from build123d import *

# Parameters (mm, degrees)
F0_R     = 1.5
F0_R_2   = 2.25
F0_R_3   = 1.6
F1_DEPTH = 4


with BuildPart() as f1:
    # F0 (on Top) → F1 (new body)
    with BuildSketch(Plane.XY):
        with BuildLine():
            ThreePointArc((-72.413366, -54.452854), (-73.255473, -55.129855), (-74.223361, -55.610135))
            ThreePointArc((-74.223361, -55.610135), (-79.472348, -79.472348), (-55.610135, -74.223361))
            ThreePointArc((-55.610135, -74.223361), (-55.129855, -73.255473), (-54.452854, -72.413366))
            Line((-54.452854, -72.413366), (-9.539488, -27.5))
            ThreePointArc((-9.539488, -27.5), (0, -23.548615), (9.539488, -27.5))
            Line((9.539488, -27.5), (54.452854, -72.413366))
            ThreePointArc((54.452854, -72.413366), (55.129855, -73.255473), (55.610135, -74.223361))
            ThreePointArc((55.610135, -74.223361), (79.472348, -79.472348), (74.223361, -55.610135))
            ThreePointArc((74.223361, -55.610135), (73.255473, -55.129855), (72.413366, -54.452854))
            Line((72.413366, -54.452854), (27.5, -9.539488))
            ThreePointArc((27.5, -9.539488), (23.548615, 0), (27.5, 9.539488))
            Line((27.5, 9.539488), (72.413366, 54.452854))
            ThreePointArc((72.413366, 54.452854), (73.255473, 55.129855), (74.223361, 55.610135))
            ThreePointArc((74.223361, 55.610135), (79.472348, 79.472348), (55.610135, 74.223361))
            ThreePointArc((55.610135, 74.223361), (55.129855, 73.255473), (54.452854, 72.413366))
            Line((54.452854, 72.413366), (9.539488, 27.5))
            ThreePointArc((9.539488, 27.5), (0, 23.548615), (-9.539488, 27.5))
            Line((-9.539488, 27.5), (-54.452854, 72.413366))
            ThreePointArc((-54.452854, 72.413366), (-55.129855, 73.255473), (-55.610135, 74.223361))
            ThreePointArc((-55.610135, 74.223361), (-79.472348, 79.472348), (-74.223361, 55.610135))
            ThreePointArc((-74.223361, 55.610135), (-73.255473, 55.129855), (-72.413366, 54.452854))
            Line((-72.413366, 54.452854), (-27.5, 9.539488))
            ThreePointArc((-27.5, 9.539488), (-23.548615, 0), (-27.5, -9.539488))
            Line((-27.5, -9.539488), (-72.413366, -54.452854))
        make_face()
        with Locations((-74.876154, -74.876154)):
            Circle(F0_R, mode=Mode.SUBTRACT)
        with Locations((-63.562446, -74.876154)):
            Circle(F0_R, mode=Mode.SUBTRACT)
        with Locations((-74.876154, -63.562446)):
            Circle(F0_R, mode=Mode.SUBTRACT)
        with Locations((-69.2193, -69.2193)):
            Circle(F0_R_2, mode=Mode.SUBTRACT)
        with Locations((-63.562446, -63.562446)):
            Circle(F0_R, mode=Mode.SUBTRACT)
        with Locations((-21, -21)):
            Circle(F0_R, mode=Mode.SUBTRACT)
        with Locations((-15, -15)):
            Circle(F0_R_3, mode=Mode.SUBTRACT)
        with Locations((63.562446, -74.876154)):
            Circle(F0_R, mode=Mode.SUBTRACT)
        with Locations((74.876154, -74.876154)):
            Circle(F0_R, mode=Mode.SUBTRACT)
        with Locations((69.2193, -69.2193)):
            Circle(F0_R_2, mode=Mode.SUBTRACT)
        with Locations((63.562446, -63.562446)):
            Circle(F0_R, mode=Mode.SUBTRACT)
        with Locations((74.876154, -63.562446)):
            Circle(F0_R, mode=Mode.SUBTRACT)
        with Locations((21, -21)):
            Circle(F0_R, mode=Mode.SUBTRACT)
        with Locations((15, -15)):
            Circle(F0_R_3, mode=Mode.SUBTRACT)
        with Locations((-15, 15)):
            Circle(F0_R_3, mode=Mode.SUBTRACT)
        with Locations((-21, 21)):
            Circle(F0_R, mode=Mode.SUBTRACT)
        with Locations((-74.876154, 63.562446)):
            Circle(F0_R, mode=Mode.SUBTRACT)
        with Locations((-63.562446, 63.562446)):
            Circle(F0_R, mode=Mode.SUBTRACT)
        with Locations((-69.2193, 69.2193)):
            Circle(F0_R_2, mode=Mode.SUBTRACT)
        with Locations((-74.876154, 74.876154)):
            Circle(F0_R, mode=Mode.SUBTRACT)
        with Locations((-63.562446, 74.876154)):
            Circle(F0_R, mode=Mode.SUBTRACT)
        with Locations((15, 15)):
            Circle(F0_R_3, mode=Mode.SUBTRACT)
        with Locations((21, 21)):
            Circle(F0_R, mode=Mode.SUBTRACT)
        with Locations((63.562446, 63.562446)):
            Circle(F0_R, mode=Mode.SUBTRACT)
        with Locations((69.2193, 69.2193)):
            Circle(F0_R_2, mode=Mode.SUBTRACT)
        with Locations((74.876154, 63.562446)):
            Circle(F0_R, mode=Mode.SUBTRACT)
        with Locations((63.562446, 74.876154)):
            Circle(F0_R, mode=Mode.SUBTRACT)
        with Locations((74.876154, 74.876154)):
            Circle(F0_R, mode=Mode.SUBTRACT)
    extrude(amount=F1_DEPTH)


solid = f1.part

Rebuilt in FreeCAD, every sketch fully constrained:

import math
import FreeCAD as App
import Part
import Sketcher

V = App.Vector

doc = App.newDocument("Part")
body = doc.addObject("PartDesign::Body", "Body")

# Sketch on XY plane
sketch1 = doc.addObject("Sketcher::SketchObject", "Sketch")
body.addObject(sketch1)
sketch1.AttachmentSupport = (doc.XY_Plane, [""])
sketch1.MapMode = "FlatFace"
sketch1.addGeometry([
    Part.ArcOfCircle(Part.Circle(V(-75.9, -50.9, 0), V(0, 0, 1), 5), math.radians(-70), math.radians(-45)),  # 0
    Part.ArcOfCircle(Part.Circle(V(-69.2, -69.2, 0), V(0, 0, 1), 14.5), math.radians(110), math.radians(340)),  # 1
    Part.ArcOfCircle(Part.Circle(V(-50.9, -75.9, 0), V(0, 0, 1), 5), math.radians(135), math.radians(160)),  # 2
    Part.LineSegment(V(-54.5, -72.4, 0), V(-9.5, -27.5, 0)),  # 3
    Part.ArcOfCircle(Part.Circle(V(0, -37, 0), V(0, 0, 1), 13.5), math.radians(45), math.radians(135)),  # 4
    Part.LineSegment(V(9.5, -27.5, 0), V(54.5, -72.4, 0)),  # 5
    Part.ArcOfCircle(Part.Circle(V(50.9, -75.9, 0), V(0, 0, 1), 5), math.radians(20), math.radians(45)),  # 6
    Part.ArcOfCircle(Part.Circle(V(69.2, -69.2, 0), V(0, 0, 1), 14.5), math.radians(-160), math.radians(70)),  # 7
    Part.ArcOfCircle(Part.Circle(V(75.9, -50.9, 0), V(0, 0, 1), 5), math.radians(-135), math.radians(-110)),  # 8
    Part.LineSegment(V(72.4, -54.5, 0), V(27.5, -9.5, 0)),  # 9
    Part.ArcOfCircle(Part.Circle(V(37, 0, 0), V(0, 0, 1), 13.5), math.radians(135), math.radians(225)),  # 10
    Part.LineSegment(V(27.5, 9.5, 0), V(72.4, 54.5, 0)),  # 11
    Part.ArcOfCircle(Part.Circle(V(75.9, 50.9, 0), V(0, 0, 1), 5), math.radians(110), math.radians(135)),  # 12
    Part.ArcOfCircle(Part.Circle(V(69.2, 69.2, 0), V(0, 0, 1), 14.5), math.radians(-70), math.radians(160)),  # 13
    Part.ArcOfCircle(Part.Circle(V(50.9, 75.9, 0), V(0, 0, 1), 5), math.radians(-45), math.radians(-20)),  # 14
    Part.LineSegment(V(54.5, 72.4, 0), V(9.5, 27.5, 0)),  # 15
    Part.ArcOfCircle(Part.Circle(V(0, 37, 0), V(0, 0, 1), 13.5), math.radians(-135), math.radians(-45)),  # 16
    Part.LineSegment(V(-9.5, 27.5, 0), V(-54.5, 72.4, 0)),  # 17
    Part.ArcOfCircle(Part.Circle(V(-50.9, 75.9, 0), V(0, 0, 1), 5), math.radians(-160), math.radians(-135)),  # 18
    Part.ArcOfCircle(Part.Circle(V(-69.2, 69.2, 0), V(0, 0, 1), 14.5), math.radians(20), math.radians(250)),  # 19
    Part.ArcOfCircle(Part.Circle(V(-75.9, 50.9, 0), V(0, 0, 1), 5), math.radians(45), math.radians(70)),  # 20
    Part.LineSegment(V(-72.4, 54.5, 0), V(-27.5, 9.5, 0)),  # 21
    Part.ArcOfCircle(Part.Circle(V(-37, 0, 0), V(0, 0, 1), 13.5), math.radians(-45), math.radians(45)),  # 22
    Part.LineSegment(V(-27.5, -9.5, 0), V(-72.4, -54.5, 0)),  # 23
    Part.Circle(V(-74.9, -74.9, 0), V(0, 0, 1), 1.5),  # 24
    Part.Circle(V(-69.2, -69.2, 0), V(0, 0, 1), 2.2),  # 25
    Part.Circle(V(-63.6, -74.9, 0), V(0, 0, 1), 1.5),  # 26
    Part.Circle(V(-74.9, -63.6, 0), V(0, 0, 1), 1.5),  # 27
    Part.Circle(V(-63.6, -63.6, 0), V(0, 0, 1), 1.5),  # 28
    Part.Circle(V(-21, -21, 0), V(0, 0, 1), 1.5),  # 29
    Part.Circle(V(-15, -15, 0), V(0, 0, 1), 1.6),  # 30
    Part.Circle(V(63.6, -74.9, 0), V(0, 0, 1), 1.5),  # 31
    Part.Circle(V(74.9, -74.9, 0), V(0, 0, 1), 1.5),  # 32
    Part.Circle(V(69.2, -69.2, 0), V(0, 0, 1), 2.2),  # 33
    Part.Circle(V(63.6, -63.6, 0), V(0, 0, 1), 1.5),  # 34
    Part.Circle(V(74.9, -63.6, 0), V(0, 0, 1), 1.5),  # 35
    Part.Circle(V(21, -21, 0), V(0, 0, 1), 1.5),  # 36
    Part.Circle(V(15, -15, 0), V(0, 0, 1), 1.6),  # 37
    Part.Circle(V(-15, 15, 0), V(0, 0, 1), 1.6),  # 38
    Part.Circle(V(-21, 21, 0), V(0, 0, 1), 1.5),  # 39
    Part.Circle(V(-74.9, 63.6, 0), V(0, 0, 1), 1.5),  # 40
    Part.Circle(V(-63.6, 63.6, 0), V(0, 0, 1), 1.5),  # 41
    Part.Circle(V(-69.2, 69.2, 0), V(0, 0, 1), 2.2),  # 42
    Part.Circle(V(-74.9, 74.9, 0), V(0, 0, 1), 1.5),  # 43
    Part.Circle(V(-63.6, 74.9, 0), V(0, 0, 1), 1.5),  # 44
    Part.Circle(V(15, 15, 0), V(0, 0, 1), 1.6),  # 45
    Part.Circle(V(21, 21, 0), V(0, 0, 1), 1.5),  # 46
    Part.Circle(V(63.6, 63.6, 0), V(0, 0, 1), 1.5),  # 47
    Part.Circle(V(74.9, 63.6, 0), V(0, 0, 1), 1.5),  # 48
    Part.Circle(V(63.6, 74.9, 0), V(0, 0, 1), 1.5),  # 49
    Part.Circle(V(69.2, 69.2, 0), V(0, 0, 1), 2.2),  # 50
    Part.Circle(V(74.9, 74.9, 0), V(0, 0, 1), 1.5),  # 51
], False)
sketch1.addConstraint([
    Sketcher.Constraint("Tangent", 0, 1, 1, 1),
    Sketcher.Constraint("Tangent", 1, 2, 2, 2),
    Sketcher.Constraint("Tangent", 2, 1, 3, 1),
    Sketcher.Constraint("Tangent", 3, 2, 4, 2),
    Sketcher.Constraint("Tangent", 4, 1, 5, 1),
    Sketcher.Constraint("Tangent", 5, 2, 6, 2),
    Sketcher.Constraint("Tangent", 6, 1, 7, 1),
    Sketcher.Constraint("Tangent", 7, 2, 8, 2),
    Sketcher.Constraint("Tangent", 8, 1, 9, 1),
    Sketcher.Constraint("Tangent", 9, 2, 10, 2),
    Sketcher.Constraint("Tangent", 10, 1, 11, 1),
    Sketcher.Constraint("Tangent", 11, 2, 12, 2),
    Sketcher.Constraint("Tangent", 12, 1, 13, 1),
    Sketcher.Constraint("Tangent", 13, 2, 14, 2),
    Sketcher.Constraint("Tangent", 14, 1, 15, 1),
    Sketcher.Constraint("Tangent", 15, 2, 16, 2),
    Sketcher.Constraint("Tangent", 16, 1, 17, 1),
    Sketcher.Constraint("Tangent", 17, 2, 18, 2),
    Sketcher.Constraint("Tangent", 18, 1, 19, 1),
    Sketcher.Constraint("Tangent", 19, 2, 20, 2),
    Sketcher.Constraint("Tangent", 20, 1, 21, 1),
    Sketcher.Constraint("Tangent", 21, 2, 22, 2),
    Sketcher.Constraint("Tangent", 22, 1, 23, 1),
    Sketcher.Constraint("Tangent", 23, 2, 0, 2),
    Sketcher.Constraint("Coincident", 25, 3, 1, 3),
    Sketcher.Constraint("Coincident", 33, 3, 7, 3),
    Sketcher.Constraint("Coincident", 42, 3, 19, 3),
    Sketcher.Constraint("Coincident", 50, 3, 13, 3),
    Sketcher.Constraint("Equal", 0, 2),
    Sketcher.Constraint("Equal", 2, 6),
    Sketcher.Constraint("Equal", 1, 7),
    Sketcher.Constraint("Equal", 6, 8),
    Sketcher.Constraint("Equal", 4, 10),
    Sketcher.Constraint("Equal", 8, 12),
    Sketcher.Constraint("Equal", 7, 13),
    Sketcher.Constraint("Equal", 12, 14),
    Sketcher.Constraint("Equal", 10, 16),
    Sketcher.Constraint("Equal", 14, 18),
    Sketcher.Constraint("Equal", 13, 19),
    Sketcher.Constraint("Equal", 18, 20),
    Sketcher.Constraint("Equal", 16, 22),
    Sketcher.Constraint("Equal", 24, 26),
    Sketcher.Constraint("Equal", 26, 27),
    Sketcher.Constraint("Equal", 27, 28),
    Sketcher.Constraint("Equal", 28, 29),
    Sketcher.Constraint("Equal", 29, 31),
    Sketcher.Constraint("Equal", 31, 32),
    Sketcher.Constraint("Equal", 25, 33),
    Sketcher.Constraint("Equal", 32, 34),
    Sketcher.Constraint("Equal", 34, 35),
    Sketcher.Constraint("Equal", 35, 36),
    Sketcher.Constraint("Equal", 30, 37),
    Sketcher.Constraint("Equal", 37, 38),
    Sketcher.Constraint("Equal", 36, 39),
    Sketcher.Constraint("Equal", 39, 40),
    Sketcher.Constraint("Equal", 40, 41),
    Sketcher.Constraint("Equal", 33, 42),
    Sketcher.Constraint("Equal", 41, 43),
    Sketcher.Constraint("Equal", 43, 44),
    Sketcher.Constraint("Equal", 38, 45),
    Sketcher.Constraint("Equal", 44, 46),
    Sketcher.Constraint("Equal", 46, 47),
    Sketcher.Constraint("Equal", 47, 48),
    Sketcher.Constraint("Equal", 48, 49),
    Sketcher.Constraint("Equal", 42, 50),
    Sketcher.Constraint("Equal", 49, 51),
    Sketcher.Constraint("Symmetric", 0, 3, 12, 3, -1, 1),
    Sketcher.Constraint("Symmetric", 2, 3, 14, 3, -1, 1),
    Sketcher.Constraint("Symmetric", 4, 3, 16, 3, -1, 1),
    Sketcher.Constraint("Symmetric", 6, 3, 18, 3, -1, 1),
    Sketcher.Constraint("Symmetric", 8, 3, 20, 3, -1, 1),
    Sketcher.Constraint("Symmetric", 10, 3, 22, 3, -1, 1),
    Sketcher.Constraint("Symmetric", 37, 3, 38, 3, -1, 1),
    Sketcher.Constraint("Symmetric", 36, 3, 39, 3, -1, 1),
    Sketcher.Constraint("Symmetric", 35, 3, 40, 3, -1, 1),
    Sketcher.Constraint("Symmetric", 34, 3, 41, 3, -1, 1),
    Sketcher.Constraint("Symmetric", 32, 3, 43, 3, -1, 1),
    Sketcher.Constraint("Symmetric", 31, 3, 44, 3, -1, 1),
    Sketcher.Constraint("Symmetric", 30, 3, 45, 3, -1, 1),
    Sketcher.Constraint("Symmetric", 29, 3, 46, 3, -1, 1),
    Sketcher.Constraint("Symmetric", 28, 3, 47, 3, -1, 1),
    Sketcher.Constraint("Symmetric", 27, 3, 48, 3, -1, 1),
    Sketcher.Constraint("Symmetric", 26, 3, 49, 3, -1, 1),
    Sketcher.Constraint("Symmetric", 24, 3, 51, 3, -1, 1),
    Sketcher.Constraint("Symmetric", 2, 3, 6, 3, -2),
    Sketcher.Constraint("Symmetric", 0, 3, 8, 3, -2),
    Sketcher.Constraint("Symmetric", 26, 3, 31, 3, -2),
    Sketcher.Constraint("Symmetric", 24, 3, 32, 3, -2),
    Sketcher.Constraint("Symmetric", 28, 3, 34, 3, -2),
    Sketcher.Constraint("Symmetric", 27, 3, 35, 3, -2),
    Sketcher.Constraint("Symmetric", 29, 3, 36, 3, -2),
    Sketcher.Constraint("Symmetric", 30, 3, 37, 3, -2),
    Sketcher.Constraint("PointOnObject", 4, 3, -2),
    Sketcher.Constraint("PointOnObject", 10, 3, -1),
    Sketcher.Constraint("Perpendicular", 3, 5),
    Sketcher.Constraint("Parallel", 5, 9),
    Sketcher.Constraint("Horizontal", 24, 3, 26, 3),
    Sketcher.Constraint("Horizontal", 27, 3, 28, 3),
    Sketcher.Constraint("Vertical", 24, 3, 27, 3),
    Sketcher.Constraint("Vertical", 26, 3, 28, 3),
    Sketcher.Constraint("Equal", 5, 9),
    Sketcher.Constraint("Diameter", 24, 3.0),
    Sketcher.Constraint("Diameter", 25, 4.5),
    Sketcher.Constraint("Diameter", 30, 3.2),
    Sketcher.Constraint("Radius", 1, 14.5),
    Sketcher.Constraint("DistanceX", 29, 3, -1, 1, 21.0),
    Sketcher.Constraint("DistanceY", 29, 3, -1, 1, 21.0),
    Sketcher.Constraint("DistanceX", 30, 3, -1, 1, 15.0),
    Sketcher.Constraint("DistanceY", 30, 3, -1, 1, 15.0),
    Sketcher.Constraint("DistanceY", 3, 2, -1, 1, 27.5),
    Sketcher.Constraint("DistanceX", -1, 1, 9, 2, 27.5),
    Sketcher.Constraint("Radius", 0, 4.999997),
    Sketcher.Constraint("Radius", 4, 13.490874),
    Sketcher.Constraint("DistanceX", 1, 3, -1, 1, 69.2193),
    Sketcher.Constraint("DistanceX", 24, 3, -1, 1, 74.876154),
    Sketcher.Constraint("DistanceY", 24, 3, -1, 1, 74.876154),
    Sketcher.Constraint("DistanceX", 26, 3, -1, 1, 63.562446),
    Sketcher.Constraint("DistanceY", 27, 3, -1, 1, 63.562446),
])
pad1 = doc.addObject("PartDesign::Pad", "Pad")
body.addObject(pad1)
pad1.Profile = sketch1
pad1.Length = 4

doc.recompute()
